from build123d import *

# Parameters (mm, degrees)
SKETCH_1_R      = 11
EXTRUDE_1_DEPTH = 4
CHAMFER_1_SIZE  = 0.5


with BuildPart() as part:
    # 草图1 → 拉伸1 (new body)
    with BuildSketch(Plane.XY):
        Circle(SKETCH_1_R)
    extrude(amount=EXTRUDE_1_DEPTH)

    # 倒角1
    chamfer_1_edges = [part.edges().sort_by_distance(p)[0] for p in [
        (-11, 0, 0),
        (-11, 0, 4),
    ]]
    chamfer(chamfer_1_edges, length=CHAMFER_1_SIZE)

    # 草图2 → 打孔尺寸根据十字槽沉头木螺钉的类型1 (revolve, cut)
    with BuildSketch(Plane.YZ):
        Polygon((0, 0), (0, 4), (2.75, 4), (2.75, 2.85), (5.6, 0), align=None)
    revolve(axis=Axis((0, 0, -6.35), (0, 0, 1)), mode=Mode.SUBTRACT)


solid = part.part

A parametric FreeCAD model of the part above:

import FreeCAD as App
import Part
import Sketcher

V = App.Vector
Q = App.Units.Quantity


def edges_at(feature, points):
    """Names of the edges that pass closest to the given points."""
    edges = feature.Shape.Edges
    near = lambda p: min(range(len(edges)), key=lambda i: edges[i].distToShape(Part.Vertex(*p))[0])
    return sorted({f"Edge{near(p) + 1}" for p in points})

doc = App.newDocument("Part")
params = doc.addObject("Spreadsheet::Sheet", "Params")
for row, (alias, value) in enumerate([
    ("sketch1_diameter", "22 mm"),
    ("pad1_length", "4 mm"),
    ("chamfer_size", "0.5 mm"),
    ("sketch2_height", "4 mm"),
    ("sketch2_width", "5.6 mm"),
    ("sketch2_width2", "2.75 mm"),
    ("groove_angle", "360 deg"),
], start=1):
    params.set(f"A{row}", alias)
    params.set(f"B{row}", "=" + value)
    params.setAlias(f"B{row}", alias)

body = doc.addObject("PartDesign::Body", "Body")

# Sketch on XY plane
sketch1 = body.newObject("Sketcher::SketchObject", "Sketch")
sketch1.AttachmentSupport = (doc.getObject("XY_Plane"), [""])
sketch1.MapMode = "FlatFace"
sketch1.addGeometry(Part.Circle(V(0, 0, 0), V(0, 0, 1), 11), False)
sketch1.addConstraint(Sketcher.Constraint("Coincident", 0, 3, -1, 1))
sketch1.addConstraint(Sketcher.Constraint("Diameter", 0, 22.0))
sketch1.setExpression("Constraints[1]", "Params.sketch1_diameter")
pad1 = body.newObject("PartDesign::Pad", "Pad")
pad1.Profile = sketch1
pad1.setExpression("Length", "Params.pad1_length")
doc.recompute()

chamfer = body.newObject("PartDesign::Chamfer", "Chamfer")
chamfer.Base = (pad1, edges_at(pad1, [(-11, 0, 0), (-11, 0, 4)]))
chamfer.setExpression("Size", "Params.chamfer_size")

# Sketch on YZ plane
sketch2 = body.newObject("Sketcher::SketchObject", "Sketch001")
sketch2.AttachmentSupport = (doc.getObject("YZ_Plane"), [""])
sketch2.MapMode = "FlatFace"
sketch2.addGeometry(Part.LineSegment(V(0, 4, 0), V(0, 0, 0)), False)
sketch2.addGeometry(Part.LineSegment(V(0, 0, 0), V(5.6, 0, 0)), False)
sketch2.addGeometry(Part.LineSegment(V(5.6, 0, 0), V(2.8, 2.9, 0)), False)
sketch2.addGeometry(Part.LineSegment(V(2.8, 2.9, 0), V(2.8, 4, 0)), False)
sketch2.addGeometry(Part.LineSegment(V(2.8, 4, 0), V(0, 4, 0)), False)
sketch2.addConstraint(Sketcher.Constraint("Coincident", 0, 2, 1, 1))
sketch2.addConstraint(Sketcher.Constraint("Coincident", 1, 2, 2, 1))
sketch2.addConstraint(Sketcher.Constraint("Coincident", 2, 2, 3, 1))
sketch2.addConstraint(Sketcher.Constraint("Coincident", 3, 2, 4, 1))
sketch2.addConstraint(Sketcher.Constraint("Coincident", 4, 2, 0, 1))
sketch2.addConstraint(Sketcher.Constraint("Vertical", 0))
sketch2.addConstraint(Sketcher.Constraint("Horizontal", 1))
sketch2.addConstraint(Sketcher.Constraint("Vertical", 3))
sketch2.addConstraint(Sketcher.Constraint("Horizontal", 4))
sketch2.addConstraint(Sketcher.Constraint("Coincident", 0, 2, -1, 1))
sketch2.addConstraint(Sketcher.Constraint("DistanceY", 0, 2, 0, 1, 4.0))
sketch2.addConstraint(Sketcher.Constraint("Angle", 2, Q("135 deg")))
sketch2.addConstraint(Sketcher.Constraint("DistanceX", 1, 1, 1, 2, 5.6))
sketch2.addConstraint(Sketcher.Constraint("DistanceX", 4, 2, 4, 1, 2.75))
sketch2.setExpression("Constraints[10]", "Params.sketch2_height")
sketch2.setExpression("Constraints[12]", "Params.sketch2_width")
sketch2.setExpression("Constraints[13]", "Params.sketch2_width2")
groove = body.newObject("PartDesign::Groove", "Groove")
groove.Profile = sketch2
groove.ReferenceAxis = (sketch2, ["V_Axis"])
groove.setExpression("Angle", "Params.groove_angle")

doc.recompute()
